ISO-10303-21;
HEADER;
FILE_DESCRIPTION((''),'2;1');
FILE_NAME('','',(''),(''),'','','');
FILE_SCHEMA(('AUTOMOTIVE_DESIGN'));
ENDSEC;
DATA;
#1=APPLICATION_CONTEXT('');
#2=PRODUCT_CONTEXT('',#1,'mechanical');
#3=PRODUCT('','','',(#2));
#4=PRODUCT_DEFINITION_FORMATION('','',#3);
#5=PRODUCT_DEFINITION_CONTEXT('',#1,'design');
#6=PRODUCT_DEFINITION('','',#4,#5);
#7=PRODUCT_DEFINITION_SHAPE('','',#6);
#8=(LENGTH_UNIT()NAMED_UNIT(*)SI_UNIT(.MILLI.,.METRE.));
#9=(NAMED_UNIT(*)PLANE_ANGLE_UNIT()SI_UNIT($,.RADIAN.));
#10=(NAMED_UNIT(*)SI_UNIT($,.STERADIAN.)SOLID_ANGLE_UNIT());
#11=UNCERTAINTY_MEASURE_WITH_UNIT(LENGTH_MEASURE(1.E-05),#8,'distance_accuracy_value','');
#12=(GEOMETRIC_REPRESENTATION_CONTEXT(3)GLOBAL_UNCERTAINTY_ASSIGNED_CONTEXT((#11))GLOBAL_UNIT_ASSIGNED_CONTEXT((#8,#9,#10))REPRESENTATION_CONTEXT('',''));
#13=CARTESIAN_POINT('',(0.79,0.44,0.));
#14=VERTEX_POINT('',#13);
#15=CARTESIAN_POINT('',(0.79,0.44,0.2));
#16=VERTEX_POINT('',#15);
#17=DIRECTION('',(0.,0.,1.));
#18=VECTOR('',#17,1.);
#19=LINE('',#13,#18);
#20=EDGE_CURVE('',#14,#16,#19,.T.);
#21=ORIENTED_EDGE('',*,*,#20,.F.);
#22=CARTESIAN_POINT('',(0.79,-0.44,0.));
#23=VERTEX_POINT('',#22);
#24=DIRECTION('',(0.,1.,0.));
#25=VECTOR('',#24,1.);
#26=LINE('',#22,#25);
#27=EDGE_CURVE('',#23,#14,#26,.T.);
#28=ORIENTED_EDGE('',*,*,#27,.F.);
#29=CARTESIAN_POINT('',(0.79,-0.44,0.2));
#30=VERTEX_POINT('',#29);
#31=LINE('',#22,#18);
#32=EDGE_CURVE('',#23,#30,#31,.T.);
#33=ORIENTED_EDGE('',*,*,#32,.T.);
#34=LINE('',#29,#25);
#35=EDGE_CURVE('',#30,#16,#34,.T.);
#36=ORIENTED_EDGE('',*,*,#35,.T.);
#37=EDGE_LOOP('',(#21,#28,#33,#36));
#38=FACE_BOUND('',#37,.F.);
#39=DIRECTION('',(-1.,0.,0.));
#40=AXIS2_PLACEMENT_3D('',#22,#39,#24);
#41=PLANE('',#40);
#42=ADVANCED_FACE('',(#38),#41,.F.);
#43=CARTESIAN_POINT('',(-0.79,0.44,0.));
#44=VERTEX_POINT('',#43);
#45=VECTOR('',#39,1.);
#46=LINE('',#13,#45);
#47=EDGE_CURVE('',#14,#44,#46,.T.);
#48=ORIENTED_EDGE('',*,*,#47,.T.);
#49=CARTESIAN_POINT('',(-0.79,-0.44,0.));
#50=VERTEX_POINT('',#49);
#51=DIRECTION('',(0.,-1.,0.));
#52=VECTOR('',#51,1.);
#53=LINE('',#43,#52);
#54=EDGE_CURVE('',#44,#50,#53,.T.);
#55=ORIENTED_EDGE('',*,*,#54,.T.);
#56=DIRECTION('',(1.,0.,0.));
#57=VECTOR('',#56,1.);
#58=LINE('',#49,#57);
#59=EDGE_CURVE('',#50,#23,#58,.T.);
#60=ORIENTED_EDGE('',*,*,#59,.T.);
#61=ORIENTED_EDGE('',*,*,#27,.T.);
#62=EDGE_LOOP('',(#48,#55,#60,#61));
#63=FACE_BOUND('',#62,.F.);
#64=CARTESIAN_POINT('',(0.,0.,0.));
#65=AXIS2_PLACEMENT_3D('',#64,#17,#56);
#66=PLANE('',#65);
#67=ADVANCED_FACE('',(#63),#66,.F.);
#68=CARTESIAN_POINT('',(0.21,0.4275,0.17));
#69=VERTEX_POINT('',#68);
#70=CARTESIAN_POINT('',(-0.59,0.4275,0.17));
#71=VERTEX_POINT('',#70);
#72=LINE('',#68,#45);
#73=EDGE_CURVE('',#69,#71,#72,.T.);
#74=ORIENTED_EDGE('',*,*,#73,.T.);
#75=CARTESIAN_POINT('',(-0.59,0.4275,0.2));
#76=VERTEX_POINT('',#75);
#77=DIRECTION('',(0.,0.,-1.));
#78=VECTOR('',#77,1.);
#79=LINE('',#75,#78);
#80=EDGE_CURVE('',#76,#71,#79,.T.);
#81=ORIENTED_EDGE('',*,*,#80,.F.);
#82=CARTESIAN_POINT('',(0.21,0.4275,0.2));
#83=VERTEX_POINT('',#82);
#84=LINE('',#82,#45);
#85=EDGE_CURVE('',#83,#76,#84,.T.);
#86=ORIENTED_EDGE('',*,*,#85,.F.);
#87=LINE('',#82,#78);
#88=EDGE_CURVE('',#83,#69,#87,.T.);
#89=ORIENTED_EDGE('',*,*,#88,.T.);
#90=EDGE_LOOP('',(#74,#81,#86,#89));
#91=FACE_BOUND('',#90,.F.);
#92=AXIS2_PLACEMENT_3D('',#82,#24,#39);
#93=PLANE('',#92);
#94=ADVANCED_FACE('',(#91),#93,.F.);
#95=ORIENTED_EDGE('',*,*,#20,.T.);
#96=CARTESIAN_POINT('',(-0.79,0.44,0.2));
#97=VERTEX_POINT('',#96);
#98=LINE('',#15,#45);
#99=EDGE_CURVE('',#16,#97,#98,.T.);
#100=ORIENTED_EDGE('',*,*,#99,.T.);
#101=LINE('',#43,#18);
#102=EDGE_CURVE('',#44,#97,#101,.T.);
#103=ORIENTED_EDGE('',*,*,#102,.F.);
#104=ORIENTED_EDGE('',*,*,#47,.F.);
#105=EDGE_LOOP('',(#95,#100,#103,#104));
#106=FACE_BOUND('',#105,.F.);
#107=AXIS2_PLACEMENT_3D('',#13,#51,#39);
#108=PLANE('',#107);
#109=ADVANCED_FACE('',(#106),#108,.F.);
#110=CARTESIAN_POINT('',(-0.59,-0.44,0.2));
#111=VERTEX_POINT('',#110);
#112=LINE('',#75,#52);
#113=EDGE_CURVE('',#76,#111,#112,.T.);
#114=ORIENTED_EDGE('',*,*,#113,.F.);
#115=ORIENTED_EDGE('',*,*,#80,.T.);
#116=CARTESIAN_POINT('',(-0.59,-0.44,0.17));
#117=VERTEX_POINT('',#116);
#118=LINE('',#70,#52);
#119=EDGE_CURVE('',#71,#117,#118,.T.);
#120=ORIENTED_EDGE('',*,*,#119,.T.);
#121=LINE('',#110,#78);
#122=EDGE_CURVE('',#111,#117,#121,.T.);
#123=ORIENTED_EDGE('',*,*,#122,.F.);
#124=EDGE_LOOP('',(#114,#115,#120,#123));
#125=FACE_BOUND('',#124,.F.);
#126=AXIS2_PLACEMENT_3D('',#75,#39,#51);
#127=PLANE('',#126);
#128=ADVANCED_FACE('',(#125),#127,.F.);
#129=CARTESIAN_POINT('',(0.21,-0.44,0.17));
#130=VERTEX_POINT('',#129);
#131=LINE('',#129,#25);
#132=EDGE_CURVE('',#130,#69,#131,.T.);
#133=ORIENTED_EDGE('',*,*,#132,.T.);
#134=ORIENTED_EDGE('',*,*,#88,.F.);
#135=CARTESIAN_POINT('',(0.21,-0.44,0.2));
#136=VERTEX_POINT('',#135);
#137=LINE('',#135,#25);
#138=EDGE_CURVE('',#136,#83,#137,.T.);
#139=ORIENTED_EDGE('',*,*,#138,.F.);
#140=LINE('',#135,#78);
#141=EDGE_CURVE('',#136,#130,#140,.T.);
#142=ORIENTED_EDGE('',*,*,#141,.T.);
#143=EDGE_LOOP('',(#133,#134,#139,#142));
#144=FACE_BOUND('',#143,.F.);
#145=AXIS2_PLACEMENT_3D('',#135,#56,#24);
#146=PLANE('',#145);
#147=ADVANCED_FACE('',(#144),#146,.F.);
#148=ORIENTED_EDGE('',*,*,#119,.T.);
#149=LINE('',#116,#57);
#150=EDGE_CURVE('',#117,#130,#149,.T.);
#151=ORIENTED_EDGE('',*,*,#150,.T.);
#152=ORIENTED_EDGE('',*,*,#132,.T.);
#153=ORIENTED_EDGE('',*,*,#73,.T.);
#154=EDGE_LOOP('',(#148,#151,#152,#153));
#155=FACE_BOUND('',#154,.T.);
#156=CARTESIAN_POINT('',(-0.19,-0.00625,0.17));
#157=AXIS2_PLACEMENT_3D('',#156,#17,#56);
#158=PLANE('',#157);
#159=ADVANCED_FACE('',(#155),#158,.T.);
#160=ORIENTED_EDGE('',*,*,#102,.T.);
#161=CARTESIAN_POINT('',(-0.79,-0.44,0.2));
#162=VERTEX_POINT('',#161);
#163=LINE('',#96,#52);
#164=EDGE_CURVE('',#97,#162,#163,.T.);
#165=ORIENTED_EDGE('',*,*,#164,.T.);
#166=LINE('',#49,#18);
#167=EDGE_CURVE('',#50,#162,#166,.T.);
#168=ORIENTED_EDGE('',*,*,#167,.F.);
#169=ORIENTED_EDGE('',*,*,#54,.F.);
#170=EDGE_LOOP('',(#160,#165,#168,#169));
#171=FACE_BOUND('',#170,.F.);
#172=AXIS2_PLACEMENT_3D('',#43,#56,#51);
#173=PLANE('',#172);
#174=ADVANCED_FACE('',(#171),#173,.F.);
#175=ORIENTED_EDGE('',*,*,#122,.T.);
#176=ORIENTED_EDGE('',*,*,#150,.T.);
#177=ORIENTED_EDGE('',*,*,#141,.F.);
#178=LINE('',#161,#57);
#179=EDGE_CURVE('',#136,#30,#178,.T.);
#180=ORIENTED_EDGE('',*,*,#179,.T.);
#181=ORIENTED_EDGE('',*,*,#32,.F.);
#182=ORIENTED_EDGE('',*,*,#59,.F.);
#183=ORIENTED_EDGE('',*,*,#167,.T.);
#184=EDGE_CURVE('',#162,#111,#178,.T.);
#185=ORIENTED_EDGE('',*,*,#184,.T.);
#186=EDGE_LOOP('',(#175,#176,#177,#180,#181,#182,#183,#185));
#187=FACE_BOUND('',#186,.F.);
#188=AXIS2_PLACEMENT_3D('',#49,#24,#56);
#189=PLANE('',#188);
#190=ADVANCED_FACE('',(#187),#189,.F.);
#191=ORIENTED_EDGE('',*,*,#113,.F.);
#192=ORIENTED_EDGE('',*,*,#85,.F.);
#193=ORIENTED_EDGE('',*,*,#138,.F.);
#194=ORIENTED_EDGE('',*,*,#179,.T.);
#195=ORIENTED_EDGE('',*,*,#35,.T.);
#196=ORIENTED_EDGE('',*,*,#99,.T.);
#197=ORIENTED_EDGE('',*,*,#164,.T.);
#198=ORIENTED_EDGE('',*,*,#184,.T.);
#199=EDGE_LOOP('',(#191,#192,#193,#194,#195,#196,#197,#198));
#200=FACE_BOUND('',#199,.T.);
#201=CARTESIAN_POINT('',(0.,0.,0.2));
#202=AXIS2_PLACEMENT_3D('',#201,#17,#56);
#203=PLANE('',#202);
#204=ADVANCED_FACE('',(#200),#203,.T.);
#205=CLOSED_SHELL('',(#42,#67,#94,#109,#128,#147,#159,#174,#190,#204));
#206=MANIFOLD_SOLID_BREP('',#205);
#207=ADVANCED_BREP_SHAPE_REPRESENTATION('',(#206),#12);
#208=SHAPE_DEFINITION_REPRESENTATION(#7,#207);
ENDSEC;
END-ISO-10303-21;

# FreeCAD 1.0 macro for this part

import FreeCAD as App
import Part
import Sketcher

V = App.Vector
Q = App.Units.Quantity

doc = App.newDocument("Part")
params = doc.addObject("Spreadsheet::Sheet", "Params")
for row, (alias, value) in enumerate([
    ("sketch1_height", "0.88 mm"),
    ("pad1_length", "0.2 mm"),
    ("sketch2_width", "0.8 mm"),
    ("pocket1_length", "0.03 mm"),
], start=1):
    params.set(f"A{row}", alias)
    params.set(f"B{row}", "=" + value)
    params.setAlias(f"B{row}", alias)

body = doc.addObject("PartDesign::Body", "Body")

# Sketch on XY plane
sketch1 = body.newObject("Sketcher::SketchObject", "Sketch")
sketch1.AttachmentSupport = (doc.getObject("XY_Plane"), [""])
sketch1.MapMode = "FlatFace"
sketch1.addGeometry([
    Part.LineSegment(V(-0.8, 0.4, 0), V(-0.8, -0.4, 0)),
    Part.LineSegment(V(-0.8, -0.4, 0), V(0.8, -0.4, 0)),
    Part.LineSegment(V(0.8, -0.4, 0), V(0.8, 0.4, 0)),
    Part.LineSegment(V(0.8, 0.4, 0), V(-0.8, 0.4, 0)),
], False)
sketch1.addConstraint([
    Sketcher.Constraint("Coincident", 0, 2, 1, 1),
    Sketcher.Constraint("Coincident", 1, 2, 2, 1),
    Sketcher.Constraint("Coincident", 2, 2, 3, 1),
    Sketcher.Constraint("Coincident", 3, 2, 0, 1),
    Sketcher.Constraint("Vertical", 0),
    Sketcher.Constraint("Horizontal", 1),
    Sketcher.Constraint("Vertical", 2),
    Sketcher.Constraint("Horizontal", 3),
    Sketcher.Constraint("Symmetric", 0, 2, 2, 2, -1, 1),
    Sketcher.Constraint("DistanceX", 0, 2, -1, 1, Q("0.79 mm")),
    Sketcher.Constraint("DistanceY", 0, 2, 0, 1, Q("0.88 mm")),
])
sketch1.setExpression("Constraints[10]", "Params.sketch1_height")
pad1 = body.newObject("PartDesign::Pad", "Pad")
pad1.Profile = sketch1
pad1.setExpression("Length", "Params.pad1_length")

# Sketch on XY plane
sketch2 = body.newObject("Sketcher::SketchObject", "Sketch001")
sketch2.AttachmentSupport = (doc.getObject("XY_Plane"), [""])
sketch2.MapMode = "FlatFace"
sketch2.AttachmentOffset = App.Placement(V(0, 0, 0.2), App.Rotation())
sketch2.addGeometry([
    Part.LineSegment(V(0.2, 0.4, 0), V(-0.6, 0.4, 0)),
    Part.LineSegment(V(-0.6, 0.4, 0), V(-0.6, -0.4, 0)),
    Part.LineSegment(V(-0.6, -0.4, 0), V(0.2, -0.4, 0)),
    Part.LineSegment(V(0.2, -0.4, 0), V(0.2, 0.4, 0)),
], False)
sketch2.addConstraint([
    Sketcher.Constraint("Coincident", 0, 2, 1, 1),
    Sketcher.Constraint("Coincident", 1, 2, 2, 1),
    Sketcher.Constraint("Coincident", 2, 2, 3, 1),
    Sketcher.Constraint("Coincident", 3, 2, 0, 1),
    Sketcher.Constraint("Horizontal", 0),
    Sketcher.Constraint("Vertical", 1),
    Sketcher.Constraint("Horizontal", 2),
    Sketcher.Constraint("Vertical", 3),
    Sketcher.Constraint("DistanceX", -1, 1, 2, 2, Q("0.21 mm")),
    Sketcher.Constraint("DistanceX", 0, 2, 0, 1, Q("0.8 mm")),
    Sketcher.Constraint("DistanceY", 1, 2, -1, 1, Q("0.44 mm")),
    Sketcher.Constraint("DistanceY", 1, 2, 1, 1, Q("0.8675 mm")),
])
sketch2.setExpression("Constraints[9]", "Params.sketch2_width")
pocket1 = body.newObject("PartDesign::Pocket", "Pocket")
pocket1.Profile = sketch2
pocket1.setExpression("Length", "Params.pocket1_length")

doc.recompute()
